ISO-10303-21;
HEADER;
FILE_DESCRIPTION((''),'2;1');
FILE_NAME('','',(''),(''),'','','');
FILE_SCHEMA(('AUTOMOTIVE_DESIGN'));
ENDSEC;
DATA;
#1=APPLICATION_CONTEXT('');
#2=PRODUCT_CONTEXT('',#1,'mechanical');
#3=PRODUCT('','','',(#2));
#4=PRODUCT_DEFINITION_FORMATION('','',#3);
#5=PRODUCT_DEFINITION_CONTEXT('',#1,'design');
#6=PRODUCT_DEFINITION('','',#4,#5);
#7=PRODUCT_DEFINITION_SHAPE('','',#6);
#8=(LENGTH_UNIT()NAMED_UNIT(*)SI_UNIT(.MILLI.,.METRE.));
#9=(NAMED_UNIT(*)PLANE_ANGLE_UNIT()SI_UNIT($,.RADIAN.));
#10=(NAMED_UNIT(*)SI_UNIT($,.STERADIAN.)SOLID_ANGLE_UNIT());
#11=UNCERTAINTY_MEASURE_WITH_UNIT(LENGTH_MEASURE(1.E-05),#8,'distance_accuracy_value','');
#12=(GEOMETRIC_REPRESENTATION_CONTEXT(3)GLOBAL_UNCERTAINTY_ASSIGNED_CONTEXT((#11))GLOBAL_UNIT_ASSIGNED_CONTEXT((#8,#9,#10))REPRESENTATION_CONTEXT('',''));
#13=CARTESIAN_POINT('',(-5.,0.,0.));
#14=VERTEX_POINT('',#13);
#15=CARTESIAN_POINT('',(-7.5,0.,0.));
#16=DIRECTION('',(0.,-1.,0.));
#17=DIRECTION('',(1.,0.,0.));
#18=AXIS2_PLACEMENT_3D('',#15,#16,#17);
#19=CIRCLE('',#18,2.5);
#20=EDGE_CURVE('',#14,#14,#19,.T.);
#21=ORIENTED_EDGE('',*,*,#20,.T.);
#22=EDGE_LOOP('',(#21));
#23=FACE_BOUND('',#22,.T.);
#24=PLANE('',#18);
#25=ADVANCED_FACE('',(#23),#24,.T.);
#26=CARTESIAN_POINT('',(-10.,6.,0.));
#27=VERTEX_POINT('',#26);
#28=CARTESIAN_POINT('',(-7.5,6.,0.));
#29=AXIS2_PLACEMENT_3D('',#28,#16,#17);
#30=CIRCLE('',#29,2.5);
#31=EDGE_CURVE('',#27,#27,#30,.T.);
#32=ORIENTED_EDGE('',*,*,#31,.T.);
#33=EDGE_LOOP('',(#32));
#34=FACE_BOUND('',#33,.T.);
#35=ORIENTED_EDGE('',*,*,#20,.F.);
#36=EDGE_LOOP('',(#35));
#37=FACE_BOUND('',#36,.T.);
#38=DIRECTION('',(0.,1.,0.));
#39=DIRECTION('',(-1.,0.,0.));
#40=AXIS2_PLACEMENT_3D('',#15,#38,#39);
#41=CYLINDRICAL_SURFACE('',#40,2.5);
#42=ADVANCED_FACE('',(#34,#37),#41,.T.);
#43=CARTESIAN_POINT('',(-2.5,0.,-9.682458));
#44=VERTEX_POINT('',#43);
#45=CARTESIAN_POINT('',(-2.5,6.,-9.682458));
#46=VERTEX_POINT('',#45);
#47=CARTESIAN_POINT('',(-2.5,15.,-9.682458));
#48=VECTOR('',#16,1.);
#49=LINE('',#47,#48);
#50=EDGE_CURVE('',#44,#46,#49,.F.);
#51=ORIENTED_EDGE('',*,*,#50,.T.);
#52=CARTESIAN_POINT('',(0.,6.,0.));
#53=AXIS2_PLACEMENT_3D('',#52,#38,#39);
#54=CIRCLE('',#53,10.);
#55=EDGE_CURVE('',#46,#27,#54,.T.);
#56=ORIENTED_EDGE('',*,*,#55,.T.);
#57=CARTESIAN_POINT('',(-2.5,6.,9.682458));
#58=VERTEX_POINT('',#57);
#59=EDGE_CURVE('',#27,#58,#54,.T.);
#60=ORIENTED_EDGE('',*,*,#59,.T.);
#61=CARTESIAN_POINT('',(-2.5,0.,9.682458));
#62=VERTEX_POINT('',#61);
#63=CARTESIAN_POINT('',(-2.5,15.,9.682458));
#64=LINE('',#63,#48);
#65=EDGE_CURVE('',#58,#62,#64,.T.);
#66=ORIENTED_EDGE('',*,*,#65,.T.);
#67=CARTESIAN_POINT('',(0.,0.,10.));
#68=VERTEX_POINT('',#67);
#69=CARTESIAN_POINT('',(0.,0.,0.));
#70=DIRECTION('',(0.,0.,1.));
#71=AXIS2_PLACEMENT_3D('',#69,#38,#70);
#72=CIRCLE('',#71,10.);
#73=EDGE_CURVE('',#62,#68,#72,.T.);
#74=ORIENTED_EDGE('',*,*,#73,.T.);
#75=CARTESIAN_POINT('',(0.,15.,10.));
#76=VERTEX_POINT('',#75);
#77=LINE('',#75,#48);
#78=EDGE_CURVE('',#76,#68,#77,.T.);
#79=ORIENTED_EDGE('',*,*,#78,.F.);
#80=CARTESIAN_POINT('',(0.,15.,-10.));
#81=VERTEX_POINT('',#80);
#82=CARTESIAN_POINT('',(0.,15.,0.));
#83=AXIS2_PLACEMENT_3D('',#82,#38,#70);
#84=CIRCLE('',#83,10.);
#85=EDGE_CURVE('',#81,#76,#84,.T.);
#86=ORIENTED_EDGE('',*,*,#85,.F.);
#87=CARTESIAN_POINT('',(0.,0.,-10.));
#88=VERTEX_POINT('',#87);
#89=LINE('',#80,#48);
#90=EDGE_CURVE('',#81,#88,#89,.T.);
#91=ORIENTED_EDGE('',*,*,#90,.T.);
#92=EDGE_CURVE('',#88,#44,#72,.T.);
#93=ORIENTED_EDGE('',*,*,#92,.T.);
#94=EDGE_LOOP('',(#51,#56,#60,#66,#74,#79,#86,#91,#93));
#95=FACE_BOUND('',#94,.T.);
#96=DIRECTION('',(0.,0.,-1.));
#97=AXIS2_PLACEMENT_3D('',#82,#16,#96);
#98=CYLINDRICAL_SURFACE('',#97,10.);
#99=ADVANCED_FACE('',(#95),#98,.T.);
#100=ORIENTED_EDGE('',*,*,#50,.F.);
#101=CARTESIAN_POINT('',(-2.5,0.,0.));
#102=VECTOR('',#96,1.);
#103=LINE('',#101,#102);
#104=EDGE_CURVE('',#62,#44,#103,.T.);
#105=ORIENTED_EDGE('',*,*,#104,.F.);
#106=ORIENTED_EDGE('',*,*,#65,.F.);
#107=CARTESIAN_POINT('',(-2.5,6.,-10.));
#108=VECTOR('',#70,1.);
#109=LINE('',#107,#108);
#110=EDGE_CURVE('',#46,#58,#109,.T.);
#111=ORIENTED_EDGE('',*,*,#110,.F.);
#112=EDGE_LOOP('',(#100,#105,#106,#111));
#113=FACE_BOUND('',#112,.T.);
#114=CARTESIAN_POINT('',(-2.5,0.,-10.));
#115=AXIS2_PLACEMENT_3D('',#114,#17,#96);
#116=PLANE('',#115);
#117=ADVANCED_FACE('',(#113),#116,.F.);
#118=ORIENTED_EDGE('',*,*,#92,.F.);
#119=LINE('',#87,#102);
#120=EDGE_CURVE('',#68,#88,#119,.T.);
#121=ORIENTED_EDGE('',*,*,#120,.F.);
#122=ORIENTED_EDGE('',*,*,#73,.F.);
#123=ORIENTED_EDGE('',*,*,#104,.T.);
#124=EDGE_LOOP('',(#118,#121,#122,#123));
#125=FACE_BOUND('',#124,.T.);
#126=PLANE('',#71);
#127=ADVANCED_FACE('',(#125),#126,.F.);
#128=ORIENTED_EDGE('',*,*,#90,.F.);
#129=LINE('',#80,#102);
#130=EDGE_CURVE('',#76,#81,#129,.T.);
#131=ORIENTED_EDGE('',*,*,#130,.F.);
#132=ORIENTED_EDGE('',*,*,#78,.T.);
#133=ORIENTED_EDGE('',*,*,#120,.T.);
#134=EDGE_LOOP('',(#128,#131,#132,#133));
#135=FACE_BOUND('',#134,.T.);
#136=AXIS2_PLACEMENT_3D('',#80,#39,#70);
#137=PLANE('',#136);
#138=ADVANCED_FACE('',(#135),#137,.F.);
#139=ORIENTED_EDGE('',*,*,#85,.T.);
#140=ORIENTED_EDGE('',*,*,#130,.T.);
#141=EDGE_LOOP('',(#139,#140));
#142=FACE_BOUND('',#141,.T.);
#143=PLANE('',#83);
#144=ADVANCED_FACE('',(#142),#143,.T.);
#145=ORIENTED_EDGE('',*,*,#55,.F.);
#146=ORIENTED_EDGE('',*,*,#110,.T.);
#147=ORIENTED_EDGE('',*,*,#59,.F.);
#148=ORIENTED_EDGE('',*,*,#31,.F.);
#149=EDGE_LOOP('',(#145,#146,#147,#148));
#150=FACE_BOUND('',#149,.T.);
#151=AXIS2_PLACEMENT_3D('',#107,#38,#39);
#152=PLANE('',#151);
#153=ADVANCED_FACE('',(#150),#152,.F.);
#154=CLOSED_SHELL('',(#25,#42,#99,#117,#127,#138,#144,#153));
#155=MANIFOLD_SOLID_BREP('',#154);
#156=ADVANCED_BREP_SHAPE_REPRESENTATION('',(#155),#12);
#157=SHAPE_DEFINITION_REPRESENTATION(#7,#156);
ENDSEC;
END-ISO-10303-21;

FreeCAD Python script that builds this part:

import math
import FreeCAD as App
import Part
import Sketcher

V = App.Vector
Q = App.Units.Quantity


def add_polygon(sketch, points):
    """Adds a closed chain of lines whose ends are joined by coincident constraints."""
    first, n = sketch.GeometryCount, len(points)
    for a, b in zip(points, points[1:] + points[:1]):
        sketch.addGeometry(Part.LineSegment(App.Vector(*a, 0), App.Vector(*b, 0)), False)
    for i in range(n):
        sketch.addConstraint(Sketcher.Constraint("Coincident", first + i, 2, first + (i + 1) % n, 1))

doc = App.newDocument("Part")
body = doc.addObject("PartDesign::Body", "Body")

# Sketch on XZ plane
sketch1 = body.newObject("Sketcher::SketchObject", "Sketch")
sketch1.AttachmentSupport = (doc.getObject("XZ_Plane"), [""])
sketch1.MapMode = "FlatFace"
sketch1.addGeometry(Part.LineSegment(V(0, 10, 0), V(0, -10, 0)), False)
sketch1.addGeometry(Part.ArcOfCircle(Part.Circle(V(0, 0, 0), V(0, 0, 1), 10), math.radians(90), math.radians(270)), False)
sketch1.addConstraint(Sketcher.Constraint("Coincident", 0, 1, 1, 1))
sketch1.addConstraint(Sketcher.Constraint("Coincident", 1, 2, 0, 2))
sketch1.addConstraint(Sketcher.Constraint("Vertical", 0))
sketch1.addConstraint(Sketcher.Constraint("Coincident", 1, 3, -1, 1))
sketch1.addConstraint(Sketcher.Constraint("PointOnObject", 0, 1, -2))
sketch1.addConstraint(Sketcher.Constraint("Radius", 1, Q("10 mm")))
pad1 = body.newObject("PartDesign::Pad", "Pad")
pad1.Profile = sketch1
pad1.Length = 15
pad1.Reversed = True

# Sketch on XY plane
sketch2 = body.newObject("Sketcher::SketchObject", "Sketch001")
sketch2.AttachmentSupport = (doc.getObject("XY_Plane"), [""])
sketch2.MapMode = "FlatFace"
sketch2.AttachmentOffset = App.Placement(V(0, 0, 10), App.Rotation())
add_polygon(sketch2, [(-10, 6), (-10, 0), (-2, 0), (-2, 6)])  # lines 0-3
sketch2.addConstraint(Sketcher.Constraint("Vertical", 0))
sketch2.addConstraint(Sketcher.Constraint("Horizontal", 1))
sketch2.addConstraint(Sketcher.Constraint("Vertical", 2))
sketch2.addConstraint(Sketcher.Constraint("Horizontal", 3))
sketch2.addConstraint(Sketcher.Constraint("PointOnObject", 0, 2, -1))
sketch2.addConstraint(Sketcher.Constraint("DistanceY", 0, 2, 0, 1, Q("6 mm")))
sketch2.addConstraint(Sketcher.Constraint("DistanceX", 1, 1, 1, 2, Q("7.5 mm")))
sketch2.addConstraint(Sketcher.Constraint("DistanceX", 0, 2, -1, 1, Q("10 mm")))
pocket1 = body.newObject("PartDesign::Pocket", "Pocket")
pocket1.Profile = sketch2
pocket1.Type = "ThroughAll"

# Sketch on XZ plane
sketch3 = body.newObject("Sketcher::SketchObject", "Sketch002")
sketch3.AttachmentSupport = (doc.getObject("XZ_Plane"), [""])
sketch3.MapMode = "FlatFace"
sketch3.AttachmentOffset = App.Placement(V(0, 0, -6), App.Rotation())
sketch3.addGeometry(Part.Circle(V(-7.5, 0, 0), V(0, 0, 1), 2.5), False)
sketch3.addConstraint(Sketcher.Constraint("PointOnObject", 0, 3, -1))
sketch3.addConstraint(Sketcher.Constraint("Diameter", 0, Q("5 mm")))
sketch3.addConstraint(Sketcher.Constraint("DistanceX", 0, 3, -1, 1, Q("7.5 mm")))
pad2 = body.newObject("PartDesign::Pad", "Pad001")
pad2.Profile = sketch3
pad2.Length = 6

doc.recompute()
